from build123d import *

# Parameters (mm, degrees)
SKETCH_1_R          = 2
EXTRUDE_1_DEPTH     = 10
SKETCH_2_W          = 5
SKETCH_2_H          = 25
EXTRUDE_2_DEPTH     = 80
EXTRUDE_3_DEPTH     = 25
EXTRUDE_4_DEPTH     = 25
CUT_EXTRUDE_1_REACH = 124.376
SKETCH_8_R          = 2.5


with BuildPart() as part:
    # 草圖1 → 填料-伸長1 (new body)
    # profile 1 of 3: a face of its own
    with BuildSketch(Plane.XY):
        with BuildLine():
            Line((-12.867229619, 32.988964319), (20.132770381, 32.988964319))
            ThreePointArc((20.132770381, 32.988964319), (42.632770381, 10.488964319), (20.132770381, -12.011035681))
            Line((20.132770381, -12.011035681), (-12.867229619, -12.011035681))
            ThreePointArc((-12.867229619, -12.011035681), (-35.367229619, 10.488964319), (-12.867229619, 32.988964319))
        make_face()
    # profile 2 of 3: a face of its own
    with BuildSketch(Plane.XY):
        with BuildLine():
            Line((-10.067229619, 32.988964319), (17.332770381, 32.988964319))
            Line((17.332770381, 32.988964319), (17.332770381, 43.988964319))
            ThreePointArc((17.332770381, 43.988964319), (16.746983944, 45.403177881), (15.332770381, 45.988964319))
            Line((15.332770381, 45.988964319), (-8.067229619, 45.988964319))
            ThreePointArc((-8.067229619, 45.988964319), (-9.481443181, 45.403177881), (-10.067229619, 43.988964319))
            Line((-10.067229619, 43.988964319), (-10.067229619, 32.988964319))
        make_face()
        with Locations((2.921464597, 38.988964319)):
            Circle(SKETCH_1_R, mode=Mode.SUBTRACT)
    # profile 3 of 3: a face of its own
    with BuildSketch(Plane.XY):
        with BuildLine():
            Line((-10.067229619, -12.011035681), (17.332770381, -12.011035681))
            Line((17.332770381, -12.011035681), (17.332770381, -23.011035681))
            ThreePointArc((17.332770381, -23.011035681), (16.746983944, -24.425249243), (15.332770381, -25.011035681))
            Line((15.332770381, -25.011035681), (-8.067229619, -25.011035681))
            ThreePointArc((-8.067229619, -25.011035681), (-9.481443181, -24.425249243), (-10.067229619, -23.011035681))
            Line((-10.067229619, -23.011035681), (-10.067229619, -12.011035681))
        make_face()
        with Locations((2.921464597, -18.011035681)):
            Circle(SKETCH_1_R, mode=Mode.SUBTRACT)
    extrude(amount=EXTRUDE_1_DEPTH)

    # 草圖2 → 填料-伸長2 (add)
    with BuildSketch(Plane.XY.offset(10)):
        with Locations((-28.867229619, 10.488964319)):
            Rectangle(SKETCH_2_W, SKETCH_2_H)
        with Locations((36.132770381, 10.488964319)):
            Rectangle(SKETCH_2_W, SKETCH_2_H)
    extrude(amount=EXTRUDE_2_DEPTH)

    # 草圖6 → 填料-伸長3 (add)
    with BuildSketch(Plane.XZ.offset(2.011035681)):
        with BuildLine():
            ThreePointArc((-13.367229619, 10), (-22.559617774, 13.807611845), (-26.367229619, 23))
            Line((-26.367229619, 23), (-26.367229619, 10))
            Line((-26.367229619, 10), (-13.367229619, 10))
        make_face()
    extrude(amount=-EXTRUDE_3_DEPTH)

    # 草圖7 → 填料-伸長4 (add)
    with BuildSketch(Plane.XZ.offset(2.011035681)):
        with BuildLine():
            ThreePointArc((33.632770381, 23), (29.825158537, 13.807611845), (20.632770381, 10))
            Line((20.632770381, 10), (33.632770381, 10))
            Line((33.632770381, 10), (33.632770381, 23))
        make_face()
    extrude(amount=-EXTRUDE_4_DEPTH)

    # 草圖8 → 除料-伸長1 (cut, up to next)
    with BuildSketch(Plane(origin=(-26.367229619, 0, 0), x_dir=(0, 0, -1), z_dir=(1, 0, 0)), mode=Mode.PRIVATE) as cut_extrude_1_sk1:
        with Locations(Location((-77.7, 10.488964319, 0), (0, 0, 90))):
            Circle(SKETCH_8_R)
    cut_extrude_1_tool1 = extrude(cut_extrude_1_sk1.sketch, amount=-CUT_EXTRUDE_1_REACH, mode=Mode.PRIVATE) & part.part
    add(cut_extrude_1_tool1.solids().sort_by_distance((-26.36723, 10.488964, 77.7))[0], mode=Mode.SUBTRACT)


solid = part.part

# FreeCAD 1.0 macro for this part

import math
import FreeCAD as App
import Part
import Sketcher
Q = App.Units.Quantity

doc = App.newDocument("Part")
params = doc.addObject("Spreadsheet::Sheet", "Params")
for row, (alias, value) in enumerate([
    ("sketch1_diameter", "4 mm"),
    ("sketch1_radius", "22.5 mm"),
    ("sketch1_height", "11 mm"),
    ("sketch1_width", "2.8 mm"),
    ("sketch1_width2", "23.4 mm"),
    ("pad1_length", "10 mm"),
    ("sketch2_width", "5 mm"),
    ("sketch2_height", "25 mm"),
    ("pad2_length", "80 mm"),
    ("sketch3_radius", "13 mm"),
    ("pad3_length", "25 mm"),
    ("sketch4_radius", "13 mm"),
    ("pad4_length", "25 mm"),
    ("sketch5_diameter", "5 mm"),
], start=1):
    params.set(f"A{row}", alias)
    params.set(f"B{row}", "=" + value)
    params.setAlias(f"B{row}", alias)

body = doc.addObject("PartDesign::Body", "Body")

sketch1 = body.newObject("Sketcher::SketchObject", "Sketch")
sketch1.AttachmentSupport = (doc.getObject("XY_Plane"), [""])
sketch1.MapMode = "FlatFace"
sketch1.addGeometry([
    Part.LineSegment(App.Vector(-10.1, 33, 0), App.Vector(-12.9, 33, 0)),
    Part.ArcOfCircle(Part.Circle(App.Vector(-12.9, 10.5, 0), App.Vector(0, 0, 1), 22.5), math.radians(90), math.radians(270)),
    Part.LineSegment(App.Vector(-12.9, -12, 0), App.Vector(-10.1, -12, 0)),
    Part.LineSegment(App.Vector(-10.1, -12, 0), App.Vector(-10.1, -23, 0)),
    Part.ArcOfCircle(Part.Circle(App.Vector(-8.1, -23, 0), App.Vector(0, 0, 1), 2), math.radians(-180), math.radians(-90)),
    Part.LineSegment(App.Vector(-8.1, -25, 0), App.Vector(15.3, -25, 0)),
    Part.ArcOfCircle(Part.Circle(App.Vector(15.3, -23, 0), App.Vector(0, 0, 1), 2), math.radians(-90), math.radians(0)),
    Part.LineSegment(App.Vector(17.3, -23, 0), App.Vector(17.3, -12, 0)),
    Part.LineSegment(App.Vector(17.3, -12, 0), App.Vector(20.1, -12, 0)),
    Part.ArcOfCircle(Part.Circle(App.Vector(20.1, 10.5, 0), App.Vector(0, 0, 1), 22.5), math.radians(-90), math.radians(90)),
    Part.LineSegment(App.Vector(20.1, 33, 0), App.Vector(17.3, 33, 0)),
    Part.LineSegment(App.Vector(17.3, 33, 0), App.Vector(17.3, 44, 0)),
    Part.ArcOfCircle(Part.Circle(App.Vector(15.3, 44, 0), App.Vector(0, 0, 1), 2), math.radians(0), math.radians(90)),
    Part.LineSegment(App.Vector(15.3, 46, 0), App.Vector(-8.1, 46, 0)),
    Part.ArcOfCircle(Part.Circle(App.Vector(-8.1, 44, 0), App.Vector(0, 0, 1), 2), math.radians(90), math.radians(180)),
    Part.LineSegment(App.Vector(-10.1, 44, 0), App.Vector(-10.1, 33, 0)),
    Part.Circle(App.Vector(2.9, 39, 0), App.Vector(0, 0, 1), 2),
    Part.Circle(App.Vector(2.9, -18, 0), App.Vector(0, 0, 1), 2),
], False)
sketch1.addConstraint([
    Sketcher.Constraint("Tangent", 0, 2, 1, 1),
    Sketcher.Constraint("Tangent", 1, 2, 2, 1),
    Sketcher.Constraint("Coincident", 2, 2, 3, 1),
    Sketcher.Constraint("Tangent", 3, 2, 4, 1),
    Sketcher.Constraint("Tangent", 4, 2, 5, 1),
    Sketcher.Constraint("Tangent", 5, 2, 6, 1),
    Sketcher.Constraint("Tangent", 6, 2, 7, 1),
    Sketcher.Constraint("Coincident", 7, 2, 8, 1),
    Sketcher.Constraint("Tangent", 8, 2, 9, 1),
    Sketcher.Constraint("Tangent", 9, 2, 10, 1),
    Sketcher.Constraint("Coincident", 10, 2, 11, 1),
    Sketcher.Constraint("Tangent", 11, 2, 12, 1),
    Sketcher.Constraint("Tangent", 12, 2, 13, 1),
    Sketcher.Constraint("Tangent", 13, 2, 14, 1),
    Sketcher.Constraint("Tangent", 14, 2, 15, 1),
    Sketcher.Constraint("Coincident", 15, 2, 0, 1),
    Sketcher.Constraint("Horizontal", 0),
    Sketcher.Constraint("Horizontal", 2),
    Sketcher.Constraint("Vertical", 3),
    Sketcher.Constraint("Horizontal", 5),
    Sketcher.Constraint("Vertical", 7),
    Sketcher.Constraint("Horizontal", 8),
    Sketcher.Constraint("Horizontal", 10),
    Sketcher.Constraint("Vertical", 11),
    Sketcher.Constraint("Horizontal", 13),
    Sketcher.Constraint("Vertical", 15),
    Sketcher.Constraint("Equal", 4, 6),
    Sketcher.Constraint("Equal", 1, 9),
    Sketcher.Constraint("Equal", 6, 12),
    Sketcher.Constraint("Equal", 12, 14),
    Sketcher.Constraint("Equal", 14, 16),
    Sketcher.Constraint("Equal", 16, 17),
    Sketcher.Constraint("Horizontal", 1, 3, 9, 3),
    Sketcher.Constraint("Vertical", 6, 3, 12, 3),
    Sketcher.Constraint("Vertical", 4, 3, 14, 3),
    Sketcher.Constraint("Vertical", 16, 3, 17, 3),
    Sketcher.Constraint("Equal", 2, 8),
    Sketcher.Constraint("Equal", 7, 11),
    Sketcher.Constraint("Diameter", 16, Q("4 mm")),
    Sketcher.Constraint("Radius", 1, Q("22.5 mm")),
    Sketcher.Constraint("DistanceY", 3, 2, 3, 1, Q("11 mm")),
    Sketcher.Constraint("DistanceX", 0, 2, 0, 1, Q("2.8 mm")),
    Sketcher.Constraint("DistanceX", 5, 1, 5, 2, Q("23.4 mm")),
    Sketcher.Constraint("DistanceY", 16, 3, 14, 3, Q("5 mm")),
    Sketcher.Constraint("DistanceY", 4, 3, 17, 3, Q("5 mm")),
    Sketcher.Constraint("DistanceX", 1, 3, -1, 1, Q("12.86723 mm")),
    Sketcher.Constraint("DistanceY", -1, 1, 1, 3, Q("10.488964 mm")),
    Sketcher.Constraint("DistanceX", -1, 1, 16, 3, Q("2.921465 mm")),
])
sketch1.setExpression("Constraints[38]", "Params.sketch1_diameter")
sketch1.setExpression("Constraints[39]", "Params.sketch1_radius")
sketch1.setExpression("Constraints[40]", "Params.sketch1_height")
sketch1.setExpression("Constraints[41]", "Params.sketch1_width")
sketch1.setExpression("Constraints[42]", "Params.sketch1_width2")
pad1 = body.newObject("PartDesign::Pad", "Pad")
pad1.Profile = sketch1
pad1.setExpression("Length", "Params.pad1_length")

sketch2 = body.newObject("Sketcher::SketchObject", "Sketch001")
sketch2.AttachmentSupport = (doc.getObject("XY_Plane"), [""])
sketch2.MapMode = "FlatFace"
sketch2.AttachmentOffset = App.Placement(App.Vector(0, 0, 10), App.Rotation())
sketch2.addGeometry([
    Part.LineSegment(App.Vector(-31, 23, 0), App.Vector(-31, -2, 0)),
    Part.LineSegment(App.Vector(-31, -2, 0), App.Vector(-26, -2, 0)),
    Part.LineSegment(App.Vector(-26, -2, 0), App.Vector(-26, 23, 0)),
    Part.LineSegment(App.Vector(-26, 23, 0), App.Vector(-31, 23, 0)),
    Part.LineSegment(App.Vector(34, 23, 0), App.Vector(34, -2, 0)),
    Part.LineSegment(App.Vector(34, -2, 0), App.Vector(39, -2, 0)),
    Part.LineSegment(App.Vector(39, -2, 0), App.Vector(39, 23, 0)),
    Part.LineSegment(App.Vector(39, 23, 0), App.Vector(34, 23, 0)),
], False)
sketch2.addConstraint([
    Sketcher.Constraint("Coincident", 0, 2, 1, 1),
    Sketcher.Constraint("Coincident", 1, 2, 2, 1),
    Sketcher.Constraint("Coincident", 2, 2, 3, 1),
    Sketcher.Constraint("Coincident", 3, 2, 0, 1),
    Sketcher.Constraint("Coincident", 4, 2, 5, 1),
    Sketcher.Constraint("Coincident", 5, 2, 6, 1),
    Sketcher.Constraint("Coincident", 6, 2, 7, 1),
    Sketcher.Constraint("Coincident", 7, 2, 4, 1),
    Sketcher.Constraint("Vertical", 0),
    Sketcher.Constraint("Horizontal", 1),
    Sketcher.Constraint("Vertical", 2),
    Sketcher.Constraint("Horizontal", 3),
    Sketcher.Constraint("Vertical", 4),
    Sketcher.Constraint("Horizontal", 5),
    Sketcher.Constraint("Vertical", 6),
    Sketcher.Constraint("Horizontal", 7),
    Sketcher.Constraint("Horizontal", 1, 2, 4, 2),
    Sketcher.Constraint("Horizontal", 3, 2, 6, 2),
    Sketcher.Constraint("Equal", 3, 5),
    Sketcher.Constraint("DistanceX", 1, 1, 1, 2, Q("5 mm")),
    Sketcher.Constraint("DistanceY", 0, 2, 0, 1, Q("25 mm")),
    Sketcher.Constraint("DistanceX", 1, 2, 4, 2, Q("60 mm")),
    Sketcher.Constraint("DistanceX", 0, 2, -1, 1, Q("31.36723 mm")),
    Sketcher.Constraint("DistanceY", 0, 2, -1, 1, Q("2.011036 mm")),
])
sketch2.setExpression("Constraints[19]", "Params.sketch2_width")
sketch2.setExpression("Constraints[20]", "Params.sketch2_height")
pad2 = body.newObject("PartDesign::Pad", "Pad001")
pad2.Profile = sketch2
pad2.setExpression("Length", "Params.pad2_length")

sketch3 = body.newObject("Sketcher::SketchObject", "Sketch002")
sketch3.AttachmentSupport = (doc.getObject("XZ_Plane"), [""])
sketch3.MapMode = "FlatFace"
sketch3.AttachmentOffset = App.Placement(App.Vector(0, 0, 2.011036), App.Rotation())
sketch3.addGeometry([
    Part.ArcOfCircle(Part.Circle(App.Vector(-13, 23, 0), App.Vector(0, 0, 1), 13), math.radians(-180), math.radians(-90)),
    Part.LineSegment(App.Vector(-26, 23, 0), App.Vector(-26, 10, 0)),
    Part.LineSegment(App.Vector(-26, 10, 0), App.Vector(-13, 10, 0)),
], False)
sketch3.addConstraint([
    Sketcher.Constraint("Tangent", 0, 1, 1, 1),
    Sketcher.Constraint("Coincident", 1, 2, 2, 1),
    Sketcher.Constraint("Tangent", 2, 2, 0, 2),
    Sketcher.Constraint("Vertical", 1),
    Sketcher.Constraint("Horizontal", 2),
    Sketcher.Constraint("Radius", 0, Q("13 mm")),
    Sketcher.Constraint("DistanceY", -1, 1, 0, 3, Q("23 mm")),
    Sketcher.Constraint("DistanceX", 0, 3, -1, 1, Q("13.36723 mm")),
])
sketch3.setExpression("Constraints[5]", "Params.sketch3_radius")
pad3 = body.newObject("PartDesign::Pad", "Pad002")
pad3.Profile = sketch3
pad3.setExpression("Length", "Params.pad3_length")
pad3.Reversed = True

sketch4 = body.newObject("Sketcher::SketchObject", "Sketch003")
sketch4.AttachmentSupport = (doc.getObject("XZ_Plane"), [""])
sketch4.MapMode = "FlatFace"
sketch4.AttachmentOffset = App.Placement(App.Vector(0, 0, 2.011036), App.Rotation())
sketch4.addGeometry([
    Part.ArcOfCircle(Part.Circle(App.Vector(21, 23, 0), App.Vector(0, 0, 1), 13), math.radians(-90), math.radians(0)),
    Part.LineSegment(App.Vector(21, 10, 0), App.Vector(34, 10, 0)),
    Part.LineSegment(App.Vector(34, 10, 0), App.Vector(34, 23, 0)),
], False)
sketch4.addConstraint([
    Sketcher.Constraint("Tangent", 0, 1, 1, 1),
    Sketcher.Constraint("Coincident", 1, 2, 2, 1),
    Sketcher.Constraint("Tangent", 2, 2, 0, 2),
    Sketcher.Constraint("Horizontal", 1),
    Sketcher.Constraint("Vertical", 2),
    Sketcher.Constraint("Radius", 0, Q("13 mm")),
    Sketcher.Constraint("DistanceY", -1, 1, 0, 3, Q("23 mm")),
    Sketcher.Constraint("DistanceX", -1, 1, 0, 3, Q("20.63277 mm")),
])
sketch4.setExpression("Constraints[5]", "Params.sketch4_radius")
pad4 = body.newObject("PartDesign::Pad", "Pad003")
pad4.Profile = sketch4
pad4.setExpression("Length", "Params.pad4_length")
pad4.Reversed = True

sketch5 = body.newObject("Sketcher::SketchObject", "Sketch004")
sketch5.AttachmentSupport = (doc.getObject("YZ_Plane"), [""])
sketch5.MapMode = "FlatFace"
sketch5.AttachmentOffset = App.Placement(App.Vector(0, 0, -26.36723), App.Rotation())
sketch5.addGeometry(Part.Circle(App.Vector(10.5, 77.7, 0), App.Vector(0, 0, 1), 2.5), False)
sketch5.addConstraint([
    Sketcher.Constraint("Diameter", 0, Q("5 mm")),
    Sketcher.Constraint("DistanceY", -1, 1, 0, 3, Q("77.7 mm")),
    Sketcher.Constraint("DistanceX", -1, 1, 0, 3, Q("10.488964 mm")),
])
sketch5.setExpression("Constraints[0]", "Params.sketch5_diameter")
pocket1 = body.newObject("PartDesign::Pocket", "Pocket")
pocket1.Profile = sketch5
pocket1.Type = "UpToFirst"

doc.recompute()
